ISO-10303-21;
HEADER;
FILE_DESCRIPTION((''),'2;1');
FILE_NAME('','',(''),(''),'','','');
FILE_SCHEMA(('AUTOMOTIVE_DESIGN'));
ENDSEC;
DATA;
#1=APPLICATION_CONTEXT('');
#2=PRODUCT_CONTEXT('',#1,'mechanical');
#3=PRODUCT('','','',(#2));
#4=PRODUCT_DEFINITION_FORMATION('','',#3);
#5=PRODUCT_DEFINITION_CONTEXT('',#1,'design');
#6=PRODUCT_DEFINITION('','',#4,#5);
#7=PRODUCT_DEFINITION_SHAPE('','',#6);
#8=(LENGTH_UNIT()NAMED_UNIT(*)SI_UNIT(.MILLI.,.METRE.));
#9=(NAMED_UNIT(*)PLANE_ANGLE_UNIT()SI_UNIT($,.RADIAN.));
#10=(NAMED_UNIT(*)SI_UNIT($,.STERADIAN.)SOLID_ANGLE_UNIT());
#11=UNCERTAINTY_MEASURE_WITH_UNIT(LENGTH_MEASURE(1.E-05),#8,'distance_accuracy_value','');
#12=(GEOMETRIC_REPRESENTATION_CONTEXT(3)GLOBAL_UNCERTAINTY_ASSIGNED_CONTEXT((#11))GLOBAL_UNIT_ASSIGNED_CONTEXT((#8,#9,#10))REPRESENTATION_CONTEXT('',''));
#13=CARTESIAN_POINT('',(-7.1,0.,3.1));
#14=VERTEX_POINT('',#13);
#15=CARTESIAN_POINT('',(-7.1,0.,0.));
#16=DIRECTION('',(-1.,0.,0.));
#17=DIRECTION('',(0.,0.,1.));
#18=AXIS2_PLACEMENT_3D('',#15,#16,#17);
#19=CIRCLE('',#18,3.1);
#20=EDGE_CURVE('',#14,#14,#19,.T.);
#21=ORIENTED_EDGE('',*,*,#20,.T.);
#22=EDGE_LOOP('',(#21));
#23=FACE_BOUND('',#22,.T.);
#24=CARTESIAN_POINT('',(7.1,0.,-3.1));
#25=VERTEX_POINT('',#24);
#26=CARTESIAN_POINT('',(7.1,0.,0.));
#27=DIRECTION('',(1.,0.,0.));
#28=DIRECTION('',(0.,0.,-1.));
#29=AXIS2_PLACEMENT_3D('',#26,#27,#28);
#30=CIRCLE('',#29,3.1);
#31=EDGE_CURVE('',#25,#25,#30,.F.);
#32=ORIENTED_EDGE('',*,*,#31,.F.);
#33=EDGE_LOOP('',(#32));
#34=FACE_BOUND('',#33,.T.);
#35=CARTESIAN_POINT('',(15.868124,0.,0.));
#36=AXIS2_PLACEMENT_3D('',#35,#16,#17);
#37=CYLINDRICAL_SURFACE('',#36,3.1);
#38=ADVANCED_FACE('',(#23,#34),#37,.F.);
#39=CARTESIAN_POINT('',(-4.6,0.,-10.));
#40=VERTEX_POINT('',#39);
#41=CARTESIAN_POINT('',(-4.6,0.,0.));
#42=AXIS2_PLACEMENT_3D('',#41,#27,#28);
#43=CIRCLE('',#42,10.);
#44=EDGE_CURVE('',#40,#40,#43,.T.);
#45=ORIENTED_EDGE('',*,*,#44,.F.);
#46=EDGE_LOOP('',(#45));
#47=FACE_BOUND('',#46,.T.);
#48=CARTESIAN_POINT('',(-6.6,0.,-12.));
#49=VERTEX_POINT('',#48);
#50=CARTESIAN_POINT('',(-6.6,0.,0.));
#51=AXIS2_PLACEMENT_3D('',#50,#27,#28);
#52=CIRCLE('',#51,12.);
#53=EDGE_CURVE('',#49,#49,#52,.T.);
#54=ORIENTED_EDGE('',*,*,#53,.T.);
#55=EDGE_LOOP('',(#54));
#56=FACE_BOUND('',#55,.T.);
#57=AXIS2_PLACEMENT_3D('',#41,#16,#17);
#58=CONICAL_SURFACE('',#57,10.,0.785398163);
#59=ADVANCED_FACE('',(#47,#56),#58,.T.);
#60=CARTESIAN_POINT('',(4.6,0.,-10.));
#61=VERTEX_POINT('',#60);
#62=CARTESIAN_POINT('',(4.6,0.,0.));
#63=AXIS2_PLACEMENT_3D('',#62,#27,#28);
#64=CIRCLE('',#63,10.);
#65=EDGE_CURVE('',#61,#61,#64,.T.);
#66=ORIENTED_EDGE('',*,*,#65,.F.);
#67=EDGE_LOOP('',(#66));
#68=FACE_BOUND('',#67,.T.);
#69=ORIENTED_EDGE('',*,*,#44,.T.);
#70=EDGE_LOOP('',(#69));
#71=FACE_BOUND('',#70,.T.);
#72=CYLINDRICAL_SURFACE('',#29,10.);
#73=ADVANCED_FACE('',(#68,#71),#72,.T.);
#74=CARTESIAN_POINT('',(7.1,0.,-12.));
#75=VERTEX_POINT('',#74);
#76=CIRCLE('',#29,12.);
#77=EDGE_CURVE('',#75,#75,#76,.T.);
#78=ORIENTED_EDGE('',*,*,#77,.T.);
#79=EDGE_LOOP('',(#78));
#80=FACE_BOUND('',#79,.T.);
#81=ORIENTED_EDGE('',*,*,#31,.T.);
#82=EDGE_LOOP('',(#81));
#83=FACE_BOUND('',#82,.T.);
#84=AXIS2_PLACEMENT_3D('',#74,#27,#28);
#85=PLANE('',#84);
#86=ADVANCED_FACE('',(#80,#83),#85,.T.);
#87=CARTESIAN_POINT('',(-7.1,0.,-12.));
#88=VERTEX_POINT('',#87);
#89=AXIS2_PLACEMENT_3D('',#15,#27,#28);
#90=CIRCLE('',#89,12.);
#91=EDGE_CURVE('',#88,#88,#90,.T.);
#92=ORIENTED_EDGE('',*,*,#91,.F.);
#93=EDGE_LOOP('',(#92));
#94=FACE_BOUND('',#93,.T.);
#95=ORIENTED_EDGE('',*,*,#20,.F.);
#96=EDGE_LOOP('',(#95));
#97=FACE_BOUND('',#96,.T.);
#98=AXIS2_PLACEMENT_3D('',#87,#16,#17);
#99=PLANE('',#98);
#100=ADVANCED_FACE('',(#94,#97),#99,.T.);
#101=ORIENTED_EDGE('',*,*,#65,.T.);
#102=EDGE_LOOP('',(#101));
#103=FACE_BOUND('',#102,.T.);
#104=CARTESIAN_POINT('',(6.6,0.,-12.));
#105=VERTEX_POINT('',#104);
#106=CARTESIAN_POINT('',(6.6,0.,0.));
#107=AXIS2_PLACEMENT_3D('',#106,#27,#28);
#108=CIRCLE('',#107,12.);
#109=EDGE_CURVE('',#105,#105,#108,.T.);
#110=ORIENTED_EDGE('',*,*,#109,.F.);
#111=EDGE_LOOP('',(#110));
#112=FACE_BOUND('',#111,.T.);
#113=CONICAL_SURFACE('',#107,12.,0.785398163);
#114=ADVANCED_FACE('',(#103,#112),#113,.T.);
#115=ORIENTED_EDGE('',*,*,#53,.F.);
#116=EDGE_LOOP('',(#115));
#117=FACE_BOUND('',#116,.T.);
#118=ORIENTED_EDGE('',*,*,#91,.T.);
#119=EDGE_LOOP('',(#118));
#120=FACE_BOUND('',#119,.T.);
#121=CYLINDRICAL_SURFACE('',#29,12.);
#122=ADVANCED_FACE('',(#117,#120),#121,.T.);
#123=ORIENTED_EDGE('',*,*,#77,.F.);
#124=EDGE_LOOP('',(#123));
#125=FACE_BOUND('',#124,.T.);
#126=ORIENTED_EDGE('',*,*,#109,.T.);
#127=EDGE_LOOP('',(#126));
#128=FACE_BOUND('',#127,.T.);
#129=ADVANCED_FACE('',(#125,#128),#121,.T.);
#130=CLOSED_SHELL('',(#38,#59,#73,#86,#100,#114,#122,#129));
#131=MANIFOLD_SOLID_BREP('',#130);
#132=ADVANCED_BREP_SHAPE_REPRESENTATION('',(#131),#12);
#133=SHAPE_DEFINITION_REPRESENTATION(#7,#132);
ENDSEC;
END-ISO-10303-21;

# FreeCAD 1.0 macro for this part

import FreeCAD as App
import Part
import Sketcher
from FreeCAD import Vector


def add_polygon(sketch, points):
    """Adds a closed chain of lines whose ends are joined by coincident constraints."""
    first, n = sketch.GeometryCount, len(points)
    for a, b in zip(points, points[1:] + points[:1]):
        sketch.addGeometry(Part.LineSegment(App.Vector(*a, 0), App.Vector(*b, 0)), False)
    for i in range(n):
        sketch.addConstraint(Sketcher.Constraint("Coincident", first + i, 2, first + (i + 1) % n, 1))

doc = App.newDocument("Part")
params = doc.addObject("Spreadsheet::Sheet", "Params")
for row, (alias, value) in enumerate([
    ("sketch1_height", "12 mm"),
    ("sketch1_width", "0.5 mm"),
    ("sketch1_width2", "14.2 mm"),
    ("sketch1_width3", "9.2 mm"),
    ("revolution_angle", "360 deg"),
    ("sketch2_diameter", "6.2 mm"),
    ("pocket1_length", "14.2 mm"),
], start=1):
    params.set(f"A{row}", alias)
    params.set(f"B{row}", "=" + value)
    params.setAlias(f"B{row}", alias)

body = doc.addObject("PartDesign::Body", "Body")

sketch1 = body.newObject("Sketcher::SketchObject", "Sketch")
sketch1.AttachmentSupport = (doc.getObject("XZ_Plane"), [""])
sketch1.MapMode = "FlatFace"
add_polygon(sketch1, [(-6.6, -12), (-7.1, -12), (-7.1, 0), (7.1, 0), (7.1, -12), (6.6, -12), (4.6, -10), (-4.6, -10)])
sketch1.addConstraint([
    Sketcher.Constraint("Horizontal", 0),
    Sketcher.Constraint("Vertical", 1),
    Sketcher.Constraint("Horizontal", 2),
    Sketcher.Constraint("Vertical", 3),
    Sketcher.Constraint("Horizontal", 4),
    Sketcher.Constraint("Horizontal", 6),
    Sketcher.Constraint("Symmetric", 1, 2, 2, 2, -1, 1),
    Sketcher.Constraint("Symmetric", 4, 2, 7, 2, -2),
    Sketcher.Constraint("Perpendicular", 5, 7),
    Sketcher.Constraint("Equal", 5, 7),
    Sketcher.Constraint("DistanceY", 1, 1, 1, 2, 12.0),
    Sketcher.Constraint("DistanceX", 0, 2, 0, 1, 0.5),
    Sketcher.Constraint("DistanceX", 2, 1, 2, 2, 14.2),
    Sketcher.Constraint("DistanceX", 6, 2, 6, 1, 9.2),
])
sketch1.setExpression("Constraints[18]", "Params.sketch1_height")
sketch1.setExpression("Constraints[19]", "Params.sketch1_width")
sketch1.setExpression("Constraints[20]", "Params.sketch1_width2")
sketch1.setExpression("Constraints[21]", "Params.sketch1_width3")
revolution = body.newObject("PartDesign::Revolution", "Revolution")
revolution.Profile = sketch1
revolution.ReferenceAxis = (sketch1, ["H_Axis"])
revolution.setExpression("Angle", "Params.revolution_angle")

sketch2 = body.newObject("Sketcher::SketchObject", "Sketch001")
sketch2.AttachmentSupport = (doc.getObject("YZ_Plane"), [""])
sketch2.MapMode = "FlatFace"
sketch2.AttachmentOffset = App.Placement(Vector(0, 0, -7.1), App.Rotation())
sketch2.addGeometry(Part.Circle(Vector(0, 0, 0), Vector(0, 0, 1), 3.1), False)
sketch2.addConstraint([
    Sketcher.Constraint("Coincident", 0, 3, -1, 1),
    Sketcher.Constraint("Diameter", 0, 6.2),
])
sketch2.setExpression("Constraints[1]", "Params.sketch2_diameter")
pocket1 = body.newObject("PartDesign::Pocket", "Pocket")
pocket1.Profile = sketch2
pocket1.setExpression("Length", "Params.pocket1_length")
pocket1.Reversed = True

doc.recompute()
